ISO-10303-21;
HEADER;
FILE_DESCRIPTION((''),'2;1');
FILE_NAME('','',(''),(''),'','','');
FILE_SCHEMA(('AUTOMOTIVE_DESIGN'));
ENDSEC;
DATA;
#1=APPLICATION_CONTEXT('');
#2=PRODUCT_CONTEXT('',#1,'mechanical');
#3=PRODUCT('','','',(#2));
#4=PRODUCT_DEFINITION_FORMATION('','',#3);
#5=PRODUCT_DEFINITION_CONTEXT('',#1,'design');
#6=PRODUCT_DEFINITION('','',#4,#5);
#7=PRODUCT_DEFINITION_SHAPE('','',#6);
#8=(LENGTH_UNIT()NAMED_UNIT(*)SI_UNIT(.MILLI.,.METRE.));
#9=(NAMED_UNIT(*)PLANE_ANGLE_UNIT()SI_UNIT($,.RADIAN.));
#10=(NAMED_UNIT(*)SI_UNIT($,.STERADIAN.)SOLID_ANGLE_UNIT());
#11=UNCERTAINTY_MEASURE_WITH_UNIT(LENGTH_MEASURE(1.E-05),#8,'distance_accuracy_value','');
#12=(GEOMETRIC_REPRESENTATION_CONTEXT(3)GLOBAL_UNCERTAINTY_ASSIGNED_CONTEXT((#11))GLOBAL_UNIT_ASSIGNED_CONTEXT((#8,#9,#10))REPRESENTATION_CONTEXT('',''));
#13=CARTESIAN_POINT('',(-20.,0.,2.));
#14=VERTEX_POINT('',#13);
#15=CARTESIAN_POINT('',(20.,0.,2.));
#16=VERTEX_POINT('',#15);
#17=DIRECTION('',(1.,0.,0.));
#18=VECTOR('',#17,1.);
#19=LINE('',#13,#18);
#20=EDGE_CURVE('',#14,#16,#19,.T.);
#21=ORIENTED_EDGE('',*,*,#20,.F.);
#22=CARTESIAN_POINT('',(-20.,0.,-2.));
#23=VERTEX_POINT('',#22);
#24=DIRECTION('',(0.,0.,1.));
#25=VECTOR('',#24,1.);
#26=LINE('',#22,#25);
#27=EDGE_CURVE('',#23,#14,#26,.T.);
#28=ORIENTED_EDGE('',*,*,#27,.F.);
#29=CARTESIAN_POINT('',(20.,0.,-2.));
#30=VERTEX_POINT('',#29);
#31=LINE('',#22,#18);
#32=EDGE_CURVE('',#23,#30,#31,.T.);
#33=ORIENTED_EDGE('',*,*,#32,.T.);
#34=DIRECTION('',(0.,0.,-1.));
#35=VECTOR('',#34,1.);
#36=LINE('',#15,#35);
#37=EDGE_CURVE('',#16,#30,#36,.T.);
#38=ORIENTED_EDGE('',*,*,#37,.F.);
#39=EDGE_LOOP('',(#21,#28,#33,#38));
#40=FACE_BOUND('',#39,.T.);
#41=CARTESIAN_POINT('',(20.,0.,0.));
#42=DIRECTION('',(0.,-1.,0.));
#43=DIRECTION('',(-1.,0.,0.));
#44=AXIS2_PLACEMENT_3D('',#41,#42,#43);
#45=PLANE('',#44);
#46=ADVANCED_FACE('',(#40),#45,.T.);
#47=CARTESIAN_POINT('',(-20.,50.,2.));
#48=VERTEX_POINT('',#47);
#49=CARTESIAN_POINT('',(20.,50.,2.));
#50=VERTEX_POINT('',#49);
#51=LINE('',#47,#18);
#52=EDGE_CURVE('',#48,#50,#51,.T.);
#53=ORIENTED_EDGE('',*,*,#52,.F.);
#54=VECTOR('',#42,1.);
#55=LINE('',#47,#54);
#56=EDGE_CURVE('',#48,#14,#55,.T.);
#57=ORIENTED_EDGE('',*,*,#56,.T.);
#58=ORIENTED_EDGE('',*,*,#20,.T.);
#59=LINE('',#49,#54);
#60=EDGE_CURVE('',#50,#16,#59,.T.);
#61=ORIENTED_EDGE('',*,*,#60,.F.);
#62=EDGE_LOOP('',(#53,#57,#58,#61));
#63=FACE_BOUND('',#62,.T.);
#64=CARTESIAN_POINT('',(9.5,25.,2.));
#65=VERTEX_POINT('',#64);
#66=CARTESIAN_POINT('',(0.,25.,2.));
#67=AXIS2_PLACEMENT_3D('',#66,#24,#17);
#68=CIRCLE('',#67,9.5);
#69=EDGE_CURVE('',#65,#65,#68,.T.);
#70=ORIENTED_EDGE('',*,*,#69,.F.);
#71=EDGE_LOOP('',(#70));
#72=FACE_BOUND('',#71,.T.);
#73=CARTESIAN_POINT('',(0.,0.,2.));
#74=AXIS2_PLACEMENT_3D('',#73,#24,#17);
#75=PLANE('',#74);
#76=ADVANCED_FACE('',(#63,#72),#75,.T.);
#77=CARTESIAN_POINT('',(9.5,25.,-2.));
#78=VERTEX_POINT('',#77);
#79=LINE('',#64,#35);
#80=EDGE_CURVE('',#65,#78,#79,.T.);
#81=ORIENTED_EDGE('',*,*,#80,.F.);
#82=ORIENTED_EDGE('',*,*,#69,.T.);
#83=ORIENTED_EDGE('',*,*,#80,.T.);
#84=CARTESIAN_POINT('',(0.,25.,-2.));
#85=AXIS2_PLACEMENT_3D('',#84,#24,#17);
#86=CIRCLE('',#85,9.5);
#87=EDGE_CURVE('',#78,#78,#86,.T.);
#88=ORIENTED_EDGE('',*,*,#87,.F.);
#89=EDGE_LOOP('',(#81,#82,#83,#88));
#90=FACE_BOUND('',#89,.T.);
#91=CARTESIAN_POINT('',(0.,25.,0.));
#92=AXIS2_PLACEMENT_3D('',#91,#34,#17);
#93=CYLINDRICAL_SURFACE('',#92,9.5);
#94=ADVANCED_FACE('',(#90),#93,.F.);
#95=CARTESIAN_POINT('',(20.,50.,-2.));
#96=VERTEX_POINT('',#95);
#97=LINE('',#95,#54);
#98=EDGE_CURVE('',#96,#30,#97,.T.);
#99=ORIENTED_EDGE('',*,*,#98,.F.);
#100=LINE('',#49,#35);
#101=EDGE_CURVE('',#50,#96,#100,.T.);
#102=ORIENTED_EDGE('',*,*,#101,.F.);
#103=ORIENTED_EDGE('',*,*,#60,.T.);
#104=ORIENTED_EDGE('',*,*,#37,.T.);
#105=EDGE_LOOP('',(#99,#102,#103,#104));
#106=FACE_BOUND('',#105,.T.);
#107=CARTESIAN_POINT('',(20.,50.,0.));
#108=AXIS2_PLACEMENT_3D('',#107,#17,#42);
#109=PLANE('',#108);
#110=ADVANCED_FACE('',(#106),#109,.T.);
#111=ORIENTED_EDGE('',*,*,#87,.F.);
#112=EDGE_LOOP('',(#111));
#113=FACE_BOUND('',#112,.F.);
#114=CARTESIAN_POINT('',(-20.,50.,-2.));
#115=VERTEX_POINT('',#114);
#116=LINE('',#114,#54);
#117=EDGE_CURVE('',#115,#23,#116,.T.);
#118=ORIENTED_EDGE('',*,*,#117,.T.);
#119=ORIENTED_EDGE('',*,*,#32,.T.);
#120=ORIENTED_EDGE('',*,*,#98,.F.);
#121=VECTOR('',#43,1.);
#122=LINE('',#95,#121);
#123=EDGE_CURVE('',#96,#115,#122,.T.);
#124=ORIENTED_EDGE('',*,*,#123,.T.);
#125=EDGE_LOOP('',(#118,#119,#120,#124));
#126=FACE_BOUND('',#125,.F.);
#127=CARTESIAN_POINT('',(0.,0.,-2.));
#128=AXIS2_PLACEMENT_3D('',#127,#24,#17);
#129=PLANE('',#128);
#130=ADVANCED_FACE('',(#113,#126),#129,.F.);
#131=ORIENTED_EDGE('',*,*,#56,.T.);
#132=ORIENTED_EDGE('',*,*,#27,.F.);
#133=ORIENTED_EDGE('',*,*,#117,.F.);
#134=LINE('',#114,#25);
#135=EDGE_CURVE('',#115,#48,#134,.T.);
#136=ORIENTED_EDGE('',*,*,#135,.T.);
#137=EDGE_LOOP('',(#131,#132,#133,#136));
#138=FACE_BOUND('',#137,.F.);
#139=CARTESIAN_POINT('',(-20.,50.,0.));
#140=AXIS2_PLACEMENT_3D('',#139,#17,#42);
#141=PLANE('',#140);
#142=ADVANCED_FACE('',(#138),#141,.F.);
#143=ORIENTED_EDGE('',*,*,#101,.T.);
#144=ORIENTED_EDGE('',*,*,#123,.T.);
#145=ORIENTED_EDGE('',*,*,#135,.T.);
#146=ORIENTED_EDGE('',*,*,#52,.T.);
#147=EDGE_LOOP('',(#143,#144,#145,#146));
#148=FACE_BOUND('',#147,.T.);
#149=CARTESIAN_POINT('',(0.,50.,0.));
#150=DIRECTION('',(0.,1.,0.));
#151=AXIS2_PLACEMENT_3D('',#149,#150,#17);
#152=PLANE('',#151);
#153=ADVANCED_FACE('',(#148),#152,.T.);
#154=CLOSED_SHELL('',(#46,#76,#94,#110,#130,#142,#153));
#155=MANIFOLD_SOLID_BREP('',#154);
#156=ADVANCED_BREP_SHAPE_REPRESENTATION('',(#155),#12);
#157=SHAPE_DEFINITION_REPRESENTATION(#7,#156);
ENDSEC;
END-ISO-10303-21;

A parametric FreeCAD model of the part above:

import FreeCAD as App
import Part
import Sketcher
from FreeCAD import Vector
Q = App.Units.Quantity

doc = App.newDocument("Part")
body = doc.addObject("PartDesign::Body", "Body")

sketch1 = body.newObject("Sketcher::SketchObject", "Sketch")
sketch1.AttachmentSupport = (doc.getObject("XY_Plane"), [""])
sketch1.MapMode = "FlatFace"
sketch1.addGeometry(Part.LineSegment(Vector(20, 50, 0), Vector(-20, 50, 0)), False)
sketch1.addGeometry(Part.LineSegment(Vector(-20, 50, 0), Vector(-20, 0, 0)), False)
sketch1.addGeometry(Part.LineSegment(Vector(-20, 0, 0), Vector(20, 0, 0)), False)
sketch1.addGeometry(Part.LineSegment(Vector(20, 0, 0), Vector(20, 50, 0)), False)
sketch1.addGeometry(Part.Circle(Vector(0, 25, 0), Vector(0, 0, 1), 10), False)
sketch1.addConstraint(Sketcher.Constraint("Coincident", 0, 2, 1, 1))
sketch1.addConstraint(Sketcher.Constraint("Coincident", 1, 2, 2, 1))
sketch1.addConstraint(Sketcher.Constraint("Coincident", 2, 2, 3, 1))
sketch1.addConstraint(Sketcher.Constraint("Coincident", 3, 2, 0, 1))
sketch1.addConstraint(Sketcher.Constraint("Horizontal", 0))
sketch1.addConstraint(Sketcher.Constraint("Vertical", 1))
sketch1.addConstraint(Sketcher.Constraint("Horizontal", 2))
sketch1.addConstraint(Sketcher.Constraint("Vertical", 3))
sketch1.addConstraint(Sketcher.Constraint("Symmetric", 1, 2, 2, 2, -1, 1))
sketch1.addConstraint(Sketcher.Constraint("PointOnObject", 4, 3, -2))
sketch1.addConstraint(Sketcher.Constraint("Diameter", 4, Q("19 mm")))
sketch1.addConstraint(Sketcher.Constraint("DistanceY", 1, 2, 1, 1, Q("50 mm")))
sketch1.addConstraint(Sketcher.Constraint("DistanceX", 0, 2, -1, 1, Q("20 mm")))
sketch1.addConstraint(Sketcher.Constraint("DistanceY", -1, 1, 4, 3, Q("25 mm")))
pad1 = body.newObject("PartDesign::Pad", "Pad")
pad1.Profile = sketch1
pad1.Length = 4
pad1.Midplane = True

doc.recompute()
